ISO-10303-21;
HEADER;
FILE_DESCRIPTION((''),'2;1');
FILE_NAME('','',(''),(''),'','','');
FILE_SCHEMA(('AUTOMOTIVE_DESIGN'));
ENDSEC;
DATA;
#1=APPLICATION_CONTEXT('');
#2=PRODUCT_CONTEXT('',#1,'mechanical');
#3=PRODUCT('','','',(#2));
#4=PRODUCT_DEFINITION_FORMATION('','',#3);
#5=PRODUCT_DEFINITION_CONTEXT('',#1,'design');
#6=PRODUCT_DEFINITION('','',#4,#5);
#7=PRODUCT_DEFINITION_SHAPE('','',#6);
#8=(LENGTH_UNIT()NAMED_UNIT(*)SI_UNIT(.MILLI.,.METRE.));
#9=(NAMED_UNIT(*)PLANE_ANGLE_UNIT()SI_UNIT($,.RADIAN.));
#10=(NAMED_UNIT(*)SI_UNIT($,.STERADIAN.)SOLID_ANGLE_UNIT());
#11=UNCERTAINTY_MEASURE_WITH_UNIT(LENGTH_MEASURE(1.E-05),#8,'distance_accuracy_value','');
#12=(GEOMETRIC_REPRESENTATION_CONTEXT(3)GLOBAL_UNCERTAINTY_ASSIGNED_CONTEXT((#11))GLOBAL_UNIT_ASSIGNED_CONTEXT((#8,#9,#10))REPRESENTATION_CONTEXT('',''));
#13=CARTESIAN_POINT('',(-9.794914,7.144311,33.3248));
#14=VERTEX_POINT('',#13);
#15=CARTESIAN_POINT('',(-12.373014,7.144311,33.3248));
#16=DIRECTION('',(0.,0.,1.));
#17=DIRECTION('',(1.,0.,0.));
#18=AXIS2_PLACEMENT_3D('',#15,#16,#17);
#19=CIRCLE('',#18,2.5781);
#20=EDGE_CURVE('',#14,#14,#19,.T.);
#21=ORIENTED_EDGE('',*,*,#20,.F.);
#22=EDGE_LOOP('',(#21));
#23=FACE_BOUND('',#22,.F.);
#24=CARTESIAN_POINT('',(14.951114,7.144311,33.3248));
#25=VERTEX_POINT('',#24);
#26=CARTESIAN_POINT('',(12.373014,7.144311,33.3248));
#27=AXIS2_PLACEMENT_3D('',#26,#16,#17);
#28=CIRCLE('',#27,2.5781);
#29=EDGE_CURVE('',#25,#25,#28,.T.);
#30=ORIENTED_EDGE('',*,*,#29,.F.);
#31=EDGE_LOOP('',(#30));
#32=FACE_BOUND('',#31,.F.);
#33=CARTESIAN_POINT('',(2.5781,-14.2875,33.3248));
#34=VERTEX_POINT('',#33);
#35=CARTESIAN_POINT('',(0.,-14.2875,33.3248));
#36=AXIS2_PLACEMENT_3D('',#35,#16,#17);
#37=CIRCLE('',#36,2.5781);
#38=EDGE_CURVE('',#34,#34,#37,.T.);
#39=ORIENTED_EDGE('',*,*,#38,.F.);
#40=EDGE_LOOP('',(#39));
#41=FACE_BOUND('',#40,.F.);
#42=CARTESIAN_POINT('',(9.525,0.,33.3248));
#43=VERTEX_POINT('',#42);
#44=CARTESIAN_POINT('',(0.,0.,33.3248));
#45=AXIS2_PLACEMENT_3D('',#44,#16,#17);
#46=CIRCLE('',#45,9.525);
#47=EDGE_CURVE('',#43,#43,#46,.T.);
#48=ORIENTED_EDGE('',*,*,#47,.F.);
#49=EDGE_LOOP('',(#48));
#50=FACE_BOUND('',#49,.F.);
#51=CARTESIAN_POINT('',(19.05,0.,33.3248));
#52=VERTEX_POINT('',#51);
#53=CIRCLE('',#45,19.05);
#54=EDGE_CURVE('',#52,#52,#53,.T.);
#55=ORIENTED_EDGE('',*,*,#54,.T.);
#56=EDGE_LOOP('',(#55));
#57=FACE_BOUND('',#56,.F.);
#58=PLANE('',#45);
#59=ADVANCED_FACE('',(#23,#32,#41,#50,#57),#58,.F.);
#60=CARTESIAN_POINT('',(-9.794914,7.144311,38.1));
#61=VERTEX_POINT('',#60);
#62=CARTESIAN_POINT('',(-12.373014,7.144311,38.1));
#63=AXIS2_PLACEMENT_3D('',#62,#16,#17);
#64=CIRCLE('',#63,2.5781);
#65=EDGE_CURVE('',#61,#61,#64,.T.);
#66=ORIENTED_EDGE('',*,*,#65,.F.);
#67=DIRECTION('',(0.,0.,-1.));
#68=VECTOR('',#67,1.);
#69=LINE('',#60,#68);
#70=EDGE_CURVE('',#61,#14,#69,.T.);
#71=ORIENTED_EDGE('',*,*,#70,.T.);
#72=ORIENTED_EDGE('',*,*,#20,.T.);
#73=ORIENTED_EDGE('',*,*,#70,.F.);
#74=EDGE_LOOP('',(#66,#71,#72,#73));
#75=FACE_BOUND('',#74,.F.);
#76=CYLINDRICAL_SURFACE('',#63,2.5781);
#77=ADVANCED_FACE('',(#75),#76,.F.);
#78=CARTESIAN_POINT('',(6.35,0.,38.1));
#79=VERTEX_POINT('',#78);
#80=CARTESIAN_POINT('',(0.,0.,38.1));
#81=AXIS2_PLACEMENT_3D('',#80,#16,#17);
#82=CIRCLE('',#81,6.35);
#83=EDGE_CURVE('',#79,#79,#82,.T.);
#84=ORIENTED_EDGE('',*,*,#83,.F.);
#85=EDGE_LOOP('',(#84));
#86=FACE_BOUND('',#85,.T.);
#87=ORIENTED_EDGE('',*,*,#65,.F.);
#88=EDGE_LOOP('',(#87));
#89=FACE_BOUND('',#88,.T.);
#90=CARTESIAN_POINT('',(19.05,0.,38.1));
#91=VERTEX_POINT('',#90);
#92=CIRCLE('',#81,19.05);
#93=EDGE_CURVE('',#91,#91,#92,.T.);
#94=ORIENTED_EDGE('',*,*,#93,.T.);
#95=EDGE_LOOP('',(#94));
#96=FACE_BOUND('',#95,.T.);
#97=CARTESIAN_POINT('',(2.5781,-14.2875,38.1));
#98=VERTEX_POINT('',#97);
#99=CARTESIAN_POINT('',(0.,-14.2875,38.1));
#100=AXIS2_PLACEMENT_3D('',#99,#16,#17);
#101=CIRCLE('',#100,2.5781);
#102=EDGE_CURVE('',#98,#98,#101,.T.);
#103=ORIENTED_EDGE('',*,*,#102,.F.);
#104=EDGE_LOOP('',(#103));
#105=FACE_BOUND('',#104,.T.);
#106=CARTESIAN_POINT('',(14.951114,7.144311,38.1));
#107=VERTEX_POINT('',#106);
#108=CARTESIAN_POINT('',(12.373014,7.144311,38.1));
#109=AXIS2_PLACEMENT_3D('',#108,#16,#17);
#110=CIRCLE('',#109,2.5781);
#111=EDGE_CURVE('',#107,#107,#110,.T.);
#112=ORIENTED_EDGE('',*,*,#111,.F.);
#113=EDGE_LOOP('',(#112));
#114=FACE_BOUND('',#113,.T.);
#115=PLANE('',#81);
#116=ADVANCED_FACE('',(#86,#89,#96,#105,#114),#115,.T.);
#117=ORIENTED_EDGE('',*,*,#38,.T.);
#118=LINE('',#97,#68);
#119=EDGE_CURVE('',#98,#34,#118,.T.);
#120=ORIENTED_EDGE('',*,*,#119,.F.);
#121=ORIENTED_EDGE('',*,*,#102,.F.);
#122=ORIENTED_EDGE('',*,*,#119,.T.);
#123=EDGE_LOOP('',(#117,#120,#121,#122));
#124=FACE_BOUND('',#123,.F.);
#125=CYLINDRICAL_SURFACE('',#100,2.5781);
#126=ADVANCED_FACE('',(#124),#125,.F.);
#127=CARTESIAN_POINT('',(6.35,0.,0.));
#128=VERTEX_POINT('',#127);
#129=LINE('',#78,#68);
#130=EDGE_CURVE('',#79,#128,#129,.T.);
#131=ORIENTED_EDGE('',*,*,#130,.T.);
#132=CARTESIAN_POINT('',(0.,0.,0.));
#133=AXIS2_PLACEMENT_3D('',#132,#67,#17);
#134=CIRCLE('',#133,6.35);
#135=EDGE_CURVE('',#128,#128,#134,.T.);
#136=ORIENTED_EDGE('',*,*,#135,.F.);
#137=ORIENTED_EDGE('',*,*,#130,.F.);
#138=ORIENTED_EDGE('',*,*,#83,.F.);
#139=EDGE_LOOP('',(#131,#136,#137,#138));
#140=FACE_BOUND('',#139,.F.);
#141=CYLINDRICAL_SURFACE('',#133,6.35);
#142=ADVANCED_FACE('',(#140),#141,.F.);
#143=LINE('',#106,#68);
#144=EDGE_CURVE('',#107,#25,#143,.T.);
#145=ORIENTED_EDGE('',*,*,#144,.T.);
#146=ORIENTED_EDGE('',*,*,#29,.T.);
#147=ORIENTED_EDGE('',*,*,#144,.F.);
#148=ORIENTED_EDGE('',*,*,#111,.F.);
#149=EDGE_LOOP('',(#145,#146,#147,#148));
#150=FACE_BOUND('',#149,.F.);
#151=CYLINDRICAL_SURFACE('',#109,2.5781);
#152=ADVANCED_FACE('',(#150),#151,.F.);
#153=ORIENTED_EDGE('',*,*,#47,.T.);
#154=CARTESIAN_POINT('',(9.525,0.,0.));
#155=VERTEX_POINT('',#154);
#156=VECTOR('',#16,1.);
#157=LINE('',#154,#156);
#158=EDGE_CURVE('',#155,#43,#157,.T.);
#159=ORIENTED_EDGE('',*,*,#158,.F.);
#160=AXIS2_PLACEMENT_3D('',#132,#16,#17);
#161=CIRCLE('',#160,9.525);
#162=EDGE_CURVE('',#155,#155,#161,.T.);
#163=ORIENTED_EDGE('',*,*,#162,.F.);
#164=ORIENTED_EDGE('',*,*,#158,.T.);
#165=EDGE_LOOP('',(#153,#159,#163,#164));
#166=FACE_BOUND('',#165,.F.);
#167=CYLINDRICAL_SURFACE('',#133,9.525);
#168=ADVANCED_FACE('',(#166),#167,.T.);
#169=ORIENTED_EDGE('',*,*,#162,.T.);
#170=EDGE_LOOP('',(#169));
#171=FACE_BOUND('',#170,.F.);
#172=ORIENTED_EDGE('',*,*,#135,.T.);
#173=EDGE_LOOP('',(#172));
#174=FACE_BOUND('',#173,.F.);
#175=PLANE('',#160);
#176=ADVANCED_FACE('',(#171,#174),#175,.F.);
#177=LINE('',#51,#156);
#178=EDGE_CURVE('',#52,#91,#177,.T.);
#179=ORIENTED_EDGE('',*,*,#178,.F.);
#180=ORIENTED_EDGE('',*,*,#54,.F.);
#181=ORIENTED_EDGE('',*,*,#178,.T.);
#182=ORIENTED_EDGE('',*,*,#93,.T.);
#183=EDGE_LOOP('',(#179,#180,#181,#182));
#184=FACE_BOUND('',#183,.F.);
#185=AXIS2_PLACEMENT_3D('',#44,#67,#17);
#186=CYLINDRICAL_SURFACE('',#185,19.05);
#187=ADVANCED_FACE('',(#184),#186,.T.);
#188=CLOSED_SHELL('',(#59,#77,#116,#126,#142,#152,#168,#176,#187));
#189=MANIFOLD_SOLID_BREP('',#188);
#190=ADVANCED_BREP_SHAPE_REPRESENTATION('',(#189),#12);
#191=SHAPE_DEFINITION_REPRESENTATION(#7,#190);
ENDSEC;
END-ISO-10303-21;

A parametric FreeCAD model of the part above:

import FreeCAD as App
import Part
import Sketcher
from FreeCAD import Vector
Q = App.Units.Quantity

doc = App.newDocument("Part")
body = doc.addObject("PartDesign::Body", "Body")

sketch1 = doc.addObject("Sketcher::SketchObject", "Sketch")
body.addObject(sketch1)
sketch1.AttachmentSupport = (doc.XY_Plane, [""])
sketch1.MapMode = "FlatFace"
sketch1.addGeometry(Part.Circle(Vector(0, 0, 0), Vector(0, 0, 1), 10), False)
sketch1.addConstraint(Sketcher.Constraint("Coincident", 0, 3, -1, 1))
sketch1.addConstraint(Sketcher.Constraint("Diameter", 0, Q("0.75 in")))
pad1 = doc.addObject("PartDesign::Pad", "Pad")
body.addObject(pad1)
pad1.Profile = sketch1
pad1.Length = Q("1.312 in")

sketch2 = doc.addObject("Sketcher::SketchObject", "Sketch001")
body.addObject(sketch2)
sketch2.AttachmentSupport = (doc.XY_Plane, [""])
sketch2.MapMode = "FlatFace"
sketch2.addGeometry(Part.Circle(Vector(0, 0, 0), Vector(0, 0, 1), 6), False)
sketch2.addConstraint(Sketcher.Constraint("Coincident", 0, 3, -1, 1))
sketch2.addConstraint(Sketcher.Constraint("Diameter", 0, Q("0.5 in")))
pocket1 = doc.addObject("PartDesign::Pocket", "Pocket")
body.addObject(pocket1)
pocket1.Profile = sketch2
pocket1.Type = "ThroughAll"
pocket1.Reversed = True
body2 = doc.addObject("PartDesign::Body", "Body001")

sketch3 = doc.addObject("Sketcher::SketchObject", "Sketch002")
body2.addObject(sketch3)
sketch3.AttachmentSupport = (doc.getObject("XY_Plane001"), [""])
sketch3.MapMode = "FlatFace"
sketch3.AttachmentOffset = App.Placement(Vector(0, 0, 1.312 * 25.4), App.Rotation())
sketch3.addGeometry(Part.Circle(Vector(0, 0, 0), Vector(0, 0, 1), 19), False)
sketch3.addConstraint(Sketcher.Constraint("Coincident", 0, 3, -1, 1))
sketch3.addConstraint(Sketcher.Constraint("Diameter", 0, Q("1.5 in")))
pad2 = doc.addObject("PartDesign::Pad", "Pad001")
body2.addObject(pad2)
pad2.Profile = sketch3
pad2.Length = Q("0.188 in")

sketch4 = doc.addObject("Sketcher::SketchObject", "Sketch003")
body2.addObject(sketch4)
sketch4.AttachmentSupport = (doc.getObject("XY_Plane001"), [""])
sketch4.MapMode = "FlatFace"
sketch4.AttachmentOffset = App.Placement(Vector(0, 0, 1.5 * 25.4), App.Rotation())
sketch4.addGeometry(Part.Circle(Vector(-12.4, 7.1, 0), Vector(0, 0, 1), 2.6), False)
sketch4.addGeometry(Part.Circle(Vector(0, -14.3, 0), Vector(0, 0, 1), 2.6), False)
sketch4.addGeometry(Part.Circle(Vector(12.4, 7.1, 0), Vector(0, 0, 1), 2.6), False)
sketch4.addGeometry(Part.Circle(Vector(0, 0, 0), Vector(0, 0, 1), 6.3), False)
sketch4.addConstraint(Sketcher.Constraint("Coincident", 3, 3, -1, 1))
sketch4.addConstraint(Sketcher.Constraint("Equal", 0, 1))
sketch4.addConstraint(Sketcher.Constraint("Equal", 1, 2))
sketch4.addConstraint(Sketcher.Constraint("Symmetric", 0, 3, 2, 3, -2))
sketch4.addConstraint(Sketcher.Constraint("PointOnObject", 1, 3, -2))
sketch4.addConstraint(Sketcher.Constraint("Diameter", 3, Q("0.5 in")))
sketch4.addConstraint(Sketcher.Constraint("Diameter", 0, Q("0.203 in")))
sketch4.addConstraint(Sketcher.Constraint("DistanceY", 1, 3, -1, 1, Q("0.5625 in")))
sketch4.addConstraint(Sketcher.Constraint("DistanceY", -1, 1, 0, 3, 7.144311))
sketch4.addConstraint(Sketcher.Constraint("DistanceX", 0, 3, -1, 1, 12.373014))
pocket2 = doc.addObject("PartDesign::Pocket", "Pocket001")
body2.addObject(pocket2)
pocket2.Profile = sketch4
pocket2.Type = "ThroughAll"
doc.recompute()

boolean = doc.addObject("PartDesign::Boolean", "Boolean")
body2.addObject(boolean)
boolean.Type = "Fuse"
boolean.addObjects([body])

doc.recompute()
